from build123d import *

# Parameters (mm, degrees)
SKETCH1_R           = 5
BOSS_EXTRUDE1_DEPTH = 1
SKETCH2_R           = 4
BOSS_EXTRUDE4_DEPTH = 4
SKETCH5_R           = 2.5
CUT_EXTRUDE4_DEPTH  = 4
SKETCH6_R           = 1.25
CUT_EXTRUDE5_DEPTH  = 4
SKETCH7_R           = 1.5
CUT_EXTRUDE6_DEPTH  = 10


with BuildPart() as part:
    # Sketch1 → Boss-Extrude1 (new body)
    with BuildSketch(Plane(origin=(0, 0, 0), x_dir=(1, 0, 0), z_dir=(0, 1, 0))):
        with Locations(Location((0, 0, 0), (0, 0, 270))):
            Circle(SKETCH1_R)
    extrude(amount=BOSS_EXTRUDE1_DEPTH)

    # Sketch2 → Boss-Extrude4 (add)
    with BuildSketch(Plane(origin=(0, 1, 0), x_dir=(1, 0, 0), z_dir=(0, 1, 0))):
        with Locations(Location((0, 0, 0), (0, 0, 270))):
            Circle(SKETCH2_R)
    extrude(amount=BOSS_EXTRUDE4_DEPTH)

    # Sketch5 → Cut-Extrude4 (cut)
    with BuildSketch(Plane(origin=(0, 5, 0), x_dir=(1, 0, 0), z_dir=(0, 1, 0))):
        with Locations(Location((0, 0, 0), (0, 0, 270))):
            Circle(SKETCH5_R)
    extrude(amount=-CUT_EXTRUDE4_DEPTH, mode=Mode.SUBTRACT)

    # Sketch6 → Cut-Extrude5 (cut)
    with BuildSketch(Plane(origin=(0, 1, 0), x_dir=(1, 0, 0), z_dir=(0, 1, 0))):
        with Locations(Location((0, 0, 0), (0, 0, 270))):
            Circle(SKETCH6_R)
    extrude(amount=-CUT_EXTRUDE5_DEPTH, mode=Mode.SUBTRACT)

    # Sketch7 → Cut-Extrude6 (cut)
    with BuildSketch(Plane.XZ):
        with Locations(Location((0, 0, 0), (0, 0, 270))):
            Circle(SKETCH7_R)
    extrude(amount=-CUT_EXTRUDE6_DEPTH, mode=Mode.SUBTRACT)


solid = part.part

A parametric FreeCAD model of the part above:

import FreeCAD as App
import Part
import Sketcher

doc = App.newDocument("Part")
body = doc.addObject("PartDesign::Body", "Body")

sketch1 = body.newObject("Sketcher::SketchObject", "Sketch")
sketch1.AttachmentSupport = (doc.getObject("XZ_Plane"), [""])
sketch1.MapMode = "FlatFace"
sketch1.addGeometry(Part.Circle(App.Vector(0, 0, 0), App.Vector(0, 0, 1), 5), False)
sketch1.addConstraint(Sketcher.Constraint("Coincident", 0, 3, -1, 1))
sketch1.addConstraint(Sketcher.Constraint("Diameter", 0, 10.0))
pad1 = body.newObject("PartDesign::Pad", "Pad")
pad1.Profile = sketch1
pad1.Length = 1
pad1.Reversed = True

sketch2 = body.newObject("Sketcher::SketchObject", "Sketch001")
sketch2.AttachmentSupport = (doc.getObject("XZ_Plane"), [""])
sketch2.MapMode = "FlatFace"
sketch2.AttachmentOffset = App.Placement(App.Vector(0, 0, -1), App.Rotation())
sketch2.addGeometry(Part.Circle(App.Vector(0, 0, 0), App.Vector(0, 0, 1), 4), False)
sketch2.addConstraint(Sketcher.Constraint("Coincident", 0, 3, -1, 1))
sketch2.addConstraint(Sketcher.Constraint("Diameter", 0, 8.0))
pad2 = body.newObject("PartDesign::Pad", "Pad001")
pad2.Profile = sketch2
pad2.Length = 4
pad2.Reversed = True

sketch3 = body.newObject("Sketcher::SketchObject", "Sketch002")
sketch3.AttachmentSupport = (doc.getObject("XZ_Plane"), [""])
sketch3.MapMode = "FlatFace"
sketch3.AttachmentOffset = App.Placement(App.Vector(0, 0, -5), App.Rotation())
sketch3.addGeometry(Part.Circle(App.Vector(0, 0, 0), App.Vector(0, 0, 1), 2.5), False)
sketch3.addConstraint(Sketcher.Constraint("Coincident", 0, 3, -1, 1))
sketch3.addConstraint(Sketcher.Constraint("Diameter", 0, 5.0))
pocket1 = body.newObject("PartDesign::Pocket", "Pocket")
pocket1.Profile = sketch3
pocket1.Length = 4
pocket1.Reversed = True

sketch4 = body.newObject("Sketcher::SketchObject", "Sketch003")
sketch4.AttachmentSupport = (doc.getObject("XZ_Plane"), [""])
sketch4.MapMode = "FlatFace"
sketch4.AttachmentOffset = App.Placement(App.Vector(0, 0, -1), App.Rotation())
sketch4.addGeometry(Part.Circle(App.Vector(0, 0, 0), App.Vector(0, 0, 1), 1.25), False)
sketch4.addConstraint(Sketcher.Constraint("Coincident", 0, 3, -1, 1))
sketch4.addConstraint(Sketcher.Constraint("Diameter", 0, 2.5))
pocket2 = body.newObject("PartDesign::Pocket", "Pocket001")
pocket2.Profile = sketch4
pocket2.Length = 4
pocket2.Reversed = True

sketch5 = body.newObject("Sketcher::SketchObject", "Sketch004")
sketch5.AttachmentSupport = (doc.getObject("XZ_Plane"), [""])
sketch5.MapMode = "FlatFace"
sketch5.addGeometry(Part.Circle(App.Vector(0, 0, 0), App.Vector(0, 0, 1), 1.5), False)
sketch5.addConstraint(Sketcher.Constraint("Coincident", 0, 3, -1, 1))
sketch5.addConstraint(Sketcher.Constraint("Diameter", 0, 3.0))
pocket3 = body.newObject("PartDesign::Pocket", "Pocket002")
pocket3.Profile = sketch5
pocket3.Length = 10

doc.recompute()
